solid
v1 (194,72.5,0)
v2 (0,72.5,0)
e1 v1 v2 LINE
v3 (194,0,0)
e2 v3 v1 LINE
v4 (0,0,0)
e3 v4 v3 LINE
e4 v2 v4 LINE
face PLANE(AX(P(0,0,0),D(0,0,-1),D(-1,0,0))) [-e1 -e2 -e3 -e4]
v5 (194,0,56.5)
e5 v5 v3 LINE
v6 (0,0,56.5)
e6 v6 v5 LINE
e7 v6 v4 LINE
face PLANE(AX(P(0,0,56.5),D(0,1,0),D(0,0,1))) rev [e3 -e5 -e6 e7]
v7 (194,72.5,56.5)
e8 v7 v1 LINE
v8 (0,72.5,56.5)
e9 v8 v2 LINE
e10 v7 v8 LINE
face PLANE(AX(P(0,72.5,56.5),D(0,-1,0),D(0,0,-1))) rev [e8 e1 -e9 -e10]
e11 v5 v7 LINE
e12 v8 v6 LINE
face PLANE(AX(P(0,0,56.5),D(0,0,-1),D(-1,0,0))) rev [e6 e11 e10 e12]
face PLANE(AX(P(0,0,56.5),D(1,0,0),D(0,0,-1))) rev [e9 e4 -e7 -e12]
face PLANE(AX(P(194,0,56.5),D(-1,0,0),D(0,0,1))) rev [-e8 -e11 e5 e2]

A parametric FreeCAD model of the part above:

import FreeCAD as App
import Part
import Sketcher

V = App.Vector
Q = App.Units.Quantity


def add_polygon(sketch, points):
    """Adds a closed chain of lines whose ends are joined by coincident constraints."""
    first, n = sketch.GeometryCount, len(points)
    for a, b in zip(points, points[1:] + points[:1]):
        sketch.addGeometry(Part.LineSegment(App.Vector(*a, 0), App.Vector(*b, 0)), False)
    for i in range(n):
        sketch.addConstraint(Sketcher.Constraint("Coincident", first + i, 2, first + (i + 1) % n, 1))

doc = App.newDocument("Part")
params = doc.addObject("Spreadsheet::Sheet", "Params")
for row, (alias, value) in enumerate([
    ("sketch1_width", "194 mm"),
    ("sketch1_height", "72.5 mm"),
    ("pad1_length", "56.5 mm"),
], start=1):
    params.set(f"A{row}", alias)
    params.set(f"B{row}", "=" + value)
    params.setAlias(f"B{row}", alias)

body = doc.addObject("PartDesign::Body", "Body")

sketch1 = body.newObject("Sketcher::SketchObject", "Sketch")
sketch1.AttachmentSupport = (doc.getObject("XY_Plane"), [""])
sketch1.MapMode = "FlatFace"
add_polygon(sketch1, [(0, 72), (0, 0), (194, 0), (194, 72)])
sketch1.addConstraint([
    Sketcher.Constraint("Vertical", 0),
    Sketcher.Constraint("Horizontal", 1),
    Sketcher.Constraint("Vertical", 2),
    Sketcher.Constraint("Horizontal", 3),
    Sketcher.Constraint("Coincident", 0, 2, -1, 1),
    Sketcher.Constraint("DistanceX", 1, 1, 1, 2, Q("194 mm")),
    Sketcher.Constraint("DistanceY", 0, 2, 0, 1, Q("72.5 mm")),
])
sketch1.setExpression("Constraints[9]", "Params.sketch1_width")
sketch1.setExpression("Constraints[10]", "Params.sketch1_height")
pad1 = body.newObject("PartDesign::Pad", "Pad")
pad1.Profile = sketch1
pad1.setExpression("Length", "Params.pad1_length")

doc.recompute()
